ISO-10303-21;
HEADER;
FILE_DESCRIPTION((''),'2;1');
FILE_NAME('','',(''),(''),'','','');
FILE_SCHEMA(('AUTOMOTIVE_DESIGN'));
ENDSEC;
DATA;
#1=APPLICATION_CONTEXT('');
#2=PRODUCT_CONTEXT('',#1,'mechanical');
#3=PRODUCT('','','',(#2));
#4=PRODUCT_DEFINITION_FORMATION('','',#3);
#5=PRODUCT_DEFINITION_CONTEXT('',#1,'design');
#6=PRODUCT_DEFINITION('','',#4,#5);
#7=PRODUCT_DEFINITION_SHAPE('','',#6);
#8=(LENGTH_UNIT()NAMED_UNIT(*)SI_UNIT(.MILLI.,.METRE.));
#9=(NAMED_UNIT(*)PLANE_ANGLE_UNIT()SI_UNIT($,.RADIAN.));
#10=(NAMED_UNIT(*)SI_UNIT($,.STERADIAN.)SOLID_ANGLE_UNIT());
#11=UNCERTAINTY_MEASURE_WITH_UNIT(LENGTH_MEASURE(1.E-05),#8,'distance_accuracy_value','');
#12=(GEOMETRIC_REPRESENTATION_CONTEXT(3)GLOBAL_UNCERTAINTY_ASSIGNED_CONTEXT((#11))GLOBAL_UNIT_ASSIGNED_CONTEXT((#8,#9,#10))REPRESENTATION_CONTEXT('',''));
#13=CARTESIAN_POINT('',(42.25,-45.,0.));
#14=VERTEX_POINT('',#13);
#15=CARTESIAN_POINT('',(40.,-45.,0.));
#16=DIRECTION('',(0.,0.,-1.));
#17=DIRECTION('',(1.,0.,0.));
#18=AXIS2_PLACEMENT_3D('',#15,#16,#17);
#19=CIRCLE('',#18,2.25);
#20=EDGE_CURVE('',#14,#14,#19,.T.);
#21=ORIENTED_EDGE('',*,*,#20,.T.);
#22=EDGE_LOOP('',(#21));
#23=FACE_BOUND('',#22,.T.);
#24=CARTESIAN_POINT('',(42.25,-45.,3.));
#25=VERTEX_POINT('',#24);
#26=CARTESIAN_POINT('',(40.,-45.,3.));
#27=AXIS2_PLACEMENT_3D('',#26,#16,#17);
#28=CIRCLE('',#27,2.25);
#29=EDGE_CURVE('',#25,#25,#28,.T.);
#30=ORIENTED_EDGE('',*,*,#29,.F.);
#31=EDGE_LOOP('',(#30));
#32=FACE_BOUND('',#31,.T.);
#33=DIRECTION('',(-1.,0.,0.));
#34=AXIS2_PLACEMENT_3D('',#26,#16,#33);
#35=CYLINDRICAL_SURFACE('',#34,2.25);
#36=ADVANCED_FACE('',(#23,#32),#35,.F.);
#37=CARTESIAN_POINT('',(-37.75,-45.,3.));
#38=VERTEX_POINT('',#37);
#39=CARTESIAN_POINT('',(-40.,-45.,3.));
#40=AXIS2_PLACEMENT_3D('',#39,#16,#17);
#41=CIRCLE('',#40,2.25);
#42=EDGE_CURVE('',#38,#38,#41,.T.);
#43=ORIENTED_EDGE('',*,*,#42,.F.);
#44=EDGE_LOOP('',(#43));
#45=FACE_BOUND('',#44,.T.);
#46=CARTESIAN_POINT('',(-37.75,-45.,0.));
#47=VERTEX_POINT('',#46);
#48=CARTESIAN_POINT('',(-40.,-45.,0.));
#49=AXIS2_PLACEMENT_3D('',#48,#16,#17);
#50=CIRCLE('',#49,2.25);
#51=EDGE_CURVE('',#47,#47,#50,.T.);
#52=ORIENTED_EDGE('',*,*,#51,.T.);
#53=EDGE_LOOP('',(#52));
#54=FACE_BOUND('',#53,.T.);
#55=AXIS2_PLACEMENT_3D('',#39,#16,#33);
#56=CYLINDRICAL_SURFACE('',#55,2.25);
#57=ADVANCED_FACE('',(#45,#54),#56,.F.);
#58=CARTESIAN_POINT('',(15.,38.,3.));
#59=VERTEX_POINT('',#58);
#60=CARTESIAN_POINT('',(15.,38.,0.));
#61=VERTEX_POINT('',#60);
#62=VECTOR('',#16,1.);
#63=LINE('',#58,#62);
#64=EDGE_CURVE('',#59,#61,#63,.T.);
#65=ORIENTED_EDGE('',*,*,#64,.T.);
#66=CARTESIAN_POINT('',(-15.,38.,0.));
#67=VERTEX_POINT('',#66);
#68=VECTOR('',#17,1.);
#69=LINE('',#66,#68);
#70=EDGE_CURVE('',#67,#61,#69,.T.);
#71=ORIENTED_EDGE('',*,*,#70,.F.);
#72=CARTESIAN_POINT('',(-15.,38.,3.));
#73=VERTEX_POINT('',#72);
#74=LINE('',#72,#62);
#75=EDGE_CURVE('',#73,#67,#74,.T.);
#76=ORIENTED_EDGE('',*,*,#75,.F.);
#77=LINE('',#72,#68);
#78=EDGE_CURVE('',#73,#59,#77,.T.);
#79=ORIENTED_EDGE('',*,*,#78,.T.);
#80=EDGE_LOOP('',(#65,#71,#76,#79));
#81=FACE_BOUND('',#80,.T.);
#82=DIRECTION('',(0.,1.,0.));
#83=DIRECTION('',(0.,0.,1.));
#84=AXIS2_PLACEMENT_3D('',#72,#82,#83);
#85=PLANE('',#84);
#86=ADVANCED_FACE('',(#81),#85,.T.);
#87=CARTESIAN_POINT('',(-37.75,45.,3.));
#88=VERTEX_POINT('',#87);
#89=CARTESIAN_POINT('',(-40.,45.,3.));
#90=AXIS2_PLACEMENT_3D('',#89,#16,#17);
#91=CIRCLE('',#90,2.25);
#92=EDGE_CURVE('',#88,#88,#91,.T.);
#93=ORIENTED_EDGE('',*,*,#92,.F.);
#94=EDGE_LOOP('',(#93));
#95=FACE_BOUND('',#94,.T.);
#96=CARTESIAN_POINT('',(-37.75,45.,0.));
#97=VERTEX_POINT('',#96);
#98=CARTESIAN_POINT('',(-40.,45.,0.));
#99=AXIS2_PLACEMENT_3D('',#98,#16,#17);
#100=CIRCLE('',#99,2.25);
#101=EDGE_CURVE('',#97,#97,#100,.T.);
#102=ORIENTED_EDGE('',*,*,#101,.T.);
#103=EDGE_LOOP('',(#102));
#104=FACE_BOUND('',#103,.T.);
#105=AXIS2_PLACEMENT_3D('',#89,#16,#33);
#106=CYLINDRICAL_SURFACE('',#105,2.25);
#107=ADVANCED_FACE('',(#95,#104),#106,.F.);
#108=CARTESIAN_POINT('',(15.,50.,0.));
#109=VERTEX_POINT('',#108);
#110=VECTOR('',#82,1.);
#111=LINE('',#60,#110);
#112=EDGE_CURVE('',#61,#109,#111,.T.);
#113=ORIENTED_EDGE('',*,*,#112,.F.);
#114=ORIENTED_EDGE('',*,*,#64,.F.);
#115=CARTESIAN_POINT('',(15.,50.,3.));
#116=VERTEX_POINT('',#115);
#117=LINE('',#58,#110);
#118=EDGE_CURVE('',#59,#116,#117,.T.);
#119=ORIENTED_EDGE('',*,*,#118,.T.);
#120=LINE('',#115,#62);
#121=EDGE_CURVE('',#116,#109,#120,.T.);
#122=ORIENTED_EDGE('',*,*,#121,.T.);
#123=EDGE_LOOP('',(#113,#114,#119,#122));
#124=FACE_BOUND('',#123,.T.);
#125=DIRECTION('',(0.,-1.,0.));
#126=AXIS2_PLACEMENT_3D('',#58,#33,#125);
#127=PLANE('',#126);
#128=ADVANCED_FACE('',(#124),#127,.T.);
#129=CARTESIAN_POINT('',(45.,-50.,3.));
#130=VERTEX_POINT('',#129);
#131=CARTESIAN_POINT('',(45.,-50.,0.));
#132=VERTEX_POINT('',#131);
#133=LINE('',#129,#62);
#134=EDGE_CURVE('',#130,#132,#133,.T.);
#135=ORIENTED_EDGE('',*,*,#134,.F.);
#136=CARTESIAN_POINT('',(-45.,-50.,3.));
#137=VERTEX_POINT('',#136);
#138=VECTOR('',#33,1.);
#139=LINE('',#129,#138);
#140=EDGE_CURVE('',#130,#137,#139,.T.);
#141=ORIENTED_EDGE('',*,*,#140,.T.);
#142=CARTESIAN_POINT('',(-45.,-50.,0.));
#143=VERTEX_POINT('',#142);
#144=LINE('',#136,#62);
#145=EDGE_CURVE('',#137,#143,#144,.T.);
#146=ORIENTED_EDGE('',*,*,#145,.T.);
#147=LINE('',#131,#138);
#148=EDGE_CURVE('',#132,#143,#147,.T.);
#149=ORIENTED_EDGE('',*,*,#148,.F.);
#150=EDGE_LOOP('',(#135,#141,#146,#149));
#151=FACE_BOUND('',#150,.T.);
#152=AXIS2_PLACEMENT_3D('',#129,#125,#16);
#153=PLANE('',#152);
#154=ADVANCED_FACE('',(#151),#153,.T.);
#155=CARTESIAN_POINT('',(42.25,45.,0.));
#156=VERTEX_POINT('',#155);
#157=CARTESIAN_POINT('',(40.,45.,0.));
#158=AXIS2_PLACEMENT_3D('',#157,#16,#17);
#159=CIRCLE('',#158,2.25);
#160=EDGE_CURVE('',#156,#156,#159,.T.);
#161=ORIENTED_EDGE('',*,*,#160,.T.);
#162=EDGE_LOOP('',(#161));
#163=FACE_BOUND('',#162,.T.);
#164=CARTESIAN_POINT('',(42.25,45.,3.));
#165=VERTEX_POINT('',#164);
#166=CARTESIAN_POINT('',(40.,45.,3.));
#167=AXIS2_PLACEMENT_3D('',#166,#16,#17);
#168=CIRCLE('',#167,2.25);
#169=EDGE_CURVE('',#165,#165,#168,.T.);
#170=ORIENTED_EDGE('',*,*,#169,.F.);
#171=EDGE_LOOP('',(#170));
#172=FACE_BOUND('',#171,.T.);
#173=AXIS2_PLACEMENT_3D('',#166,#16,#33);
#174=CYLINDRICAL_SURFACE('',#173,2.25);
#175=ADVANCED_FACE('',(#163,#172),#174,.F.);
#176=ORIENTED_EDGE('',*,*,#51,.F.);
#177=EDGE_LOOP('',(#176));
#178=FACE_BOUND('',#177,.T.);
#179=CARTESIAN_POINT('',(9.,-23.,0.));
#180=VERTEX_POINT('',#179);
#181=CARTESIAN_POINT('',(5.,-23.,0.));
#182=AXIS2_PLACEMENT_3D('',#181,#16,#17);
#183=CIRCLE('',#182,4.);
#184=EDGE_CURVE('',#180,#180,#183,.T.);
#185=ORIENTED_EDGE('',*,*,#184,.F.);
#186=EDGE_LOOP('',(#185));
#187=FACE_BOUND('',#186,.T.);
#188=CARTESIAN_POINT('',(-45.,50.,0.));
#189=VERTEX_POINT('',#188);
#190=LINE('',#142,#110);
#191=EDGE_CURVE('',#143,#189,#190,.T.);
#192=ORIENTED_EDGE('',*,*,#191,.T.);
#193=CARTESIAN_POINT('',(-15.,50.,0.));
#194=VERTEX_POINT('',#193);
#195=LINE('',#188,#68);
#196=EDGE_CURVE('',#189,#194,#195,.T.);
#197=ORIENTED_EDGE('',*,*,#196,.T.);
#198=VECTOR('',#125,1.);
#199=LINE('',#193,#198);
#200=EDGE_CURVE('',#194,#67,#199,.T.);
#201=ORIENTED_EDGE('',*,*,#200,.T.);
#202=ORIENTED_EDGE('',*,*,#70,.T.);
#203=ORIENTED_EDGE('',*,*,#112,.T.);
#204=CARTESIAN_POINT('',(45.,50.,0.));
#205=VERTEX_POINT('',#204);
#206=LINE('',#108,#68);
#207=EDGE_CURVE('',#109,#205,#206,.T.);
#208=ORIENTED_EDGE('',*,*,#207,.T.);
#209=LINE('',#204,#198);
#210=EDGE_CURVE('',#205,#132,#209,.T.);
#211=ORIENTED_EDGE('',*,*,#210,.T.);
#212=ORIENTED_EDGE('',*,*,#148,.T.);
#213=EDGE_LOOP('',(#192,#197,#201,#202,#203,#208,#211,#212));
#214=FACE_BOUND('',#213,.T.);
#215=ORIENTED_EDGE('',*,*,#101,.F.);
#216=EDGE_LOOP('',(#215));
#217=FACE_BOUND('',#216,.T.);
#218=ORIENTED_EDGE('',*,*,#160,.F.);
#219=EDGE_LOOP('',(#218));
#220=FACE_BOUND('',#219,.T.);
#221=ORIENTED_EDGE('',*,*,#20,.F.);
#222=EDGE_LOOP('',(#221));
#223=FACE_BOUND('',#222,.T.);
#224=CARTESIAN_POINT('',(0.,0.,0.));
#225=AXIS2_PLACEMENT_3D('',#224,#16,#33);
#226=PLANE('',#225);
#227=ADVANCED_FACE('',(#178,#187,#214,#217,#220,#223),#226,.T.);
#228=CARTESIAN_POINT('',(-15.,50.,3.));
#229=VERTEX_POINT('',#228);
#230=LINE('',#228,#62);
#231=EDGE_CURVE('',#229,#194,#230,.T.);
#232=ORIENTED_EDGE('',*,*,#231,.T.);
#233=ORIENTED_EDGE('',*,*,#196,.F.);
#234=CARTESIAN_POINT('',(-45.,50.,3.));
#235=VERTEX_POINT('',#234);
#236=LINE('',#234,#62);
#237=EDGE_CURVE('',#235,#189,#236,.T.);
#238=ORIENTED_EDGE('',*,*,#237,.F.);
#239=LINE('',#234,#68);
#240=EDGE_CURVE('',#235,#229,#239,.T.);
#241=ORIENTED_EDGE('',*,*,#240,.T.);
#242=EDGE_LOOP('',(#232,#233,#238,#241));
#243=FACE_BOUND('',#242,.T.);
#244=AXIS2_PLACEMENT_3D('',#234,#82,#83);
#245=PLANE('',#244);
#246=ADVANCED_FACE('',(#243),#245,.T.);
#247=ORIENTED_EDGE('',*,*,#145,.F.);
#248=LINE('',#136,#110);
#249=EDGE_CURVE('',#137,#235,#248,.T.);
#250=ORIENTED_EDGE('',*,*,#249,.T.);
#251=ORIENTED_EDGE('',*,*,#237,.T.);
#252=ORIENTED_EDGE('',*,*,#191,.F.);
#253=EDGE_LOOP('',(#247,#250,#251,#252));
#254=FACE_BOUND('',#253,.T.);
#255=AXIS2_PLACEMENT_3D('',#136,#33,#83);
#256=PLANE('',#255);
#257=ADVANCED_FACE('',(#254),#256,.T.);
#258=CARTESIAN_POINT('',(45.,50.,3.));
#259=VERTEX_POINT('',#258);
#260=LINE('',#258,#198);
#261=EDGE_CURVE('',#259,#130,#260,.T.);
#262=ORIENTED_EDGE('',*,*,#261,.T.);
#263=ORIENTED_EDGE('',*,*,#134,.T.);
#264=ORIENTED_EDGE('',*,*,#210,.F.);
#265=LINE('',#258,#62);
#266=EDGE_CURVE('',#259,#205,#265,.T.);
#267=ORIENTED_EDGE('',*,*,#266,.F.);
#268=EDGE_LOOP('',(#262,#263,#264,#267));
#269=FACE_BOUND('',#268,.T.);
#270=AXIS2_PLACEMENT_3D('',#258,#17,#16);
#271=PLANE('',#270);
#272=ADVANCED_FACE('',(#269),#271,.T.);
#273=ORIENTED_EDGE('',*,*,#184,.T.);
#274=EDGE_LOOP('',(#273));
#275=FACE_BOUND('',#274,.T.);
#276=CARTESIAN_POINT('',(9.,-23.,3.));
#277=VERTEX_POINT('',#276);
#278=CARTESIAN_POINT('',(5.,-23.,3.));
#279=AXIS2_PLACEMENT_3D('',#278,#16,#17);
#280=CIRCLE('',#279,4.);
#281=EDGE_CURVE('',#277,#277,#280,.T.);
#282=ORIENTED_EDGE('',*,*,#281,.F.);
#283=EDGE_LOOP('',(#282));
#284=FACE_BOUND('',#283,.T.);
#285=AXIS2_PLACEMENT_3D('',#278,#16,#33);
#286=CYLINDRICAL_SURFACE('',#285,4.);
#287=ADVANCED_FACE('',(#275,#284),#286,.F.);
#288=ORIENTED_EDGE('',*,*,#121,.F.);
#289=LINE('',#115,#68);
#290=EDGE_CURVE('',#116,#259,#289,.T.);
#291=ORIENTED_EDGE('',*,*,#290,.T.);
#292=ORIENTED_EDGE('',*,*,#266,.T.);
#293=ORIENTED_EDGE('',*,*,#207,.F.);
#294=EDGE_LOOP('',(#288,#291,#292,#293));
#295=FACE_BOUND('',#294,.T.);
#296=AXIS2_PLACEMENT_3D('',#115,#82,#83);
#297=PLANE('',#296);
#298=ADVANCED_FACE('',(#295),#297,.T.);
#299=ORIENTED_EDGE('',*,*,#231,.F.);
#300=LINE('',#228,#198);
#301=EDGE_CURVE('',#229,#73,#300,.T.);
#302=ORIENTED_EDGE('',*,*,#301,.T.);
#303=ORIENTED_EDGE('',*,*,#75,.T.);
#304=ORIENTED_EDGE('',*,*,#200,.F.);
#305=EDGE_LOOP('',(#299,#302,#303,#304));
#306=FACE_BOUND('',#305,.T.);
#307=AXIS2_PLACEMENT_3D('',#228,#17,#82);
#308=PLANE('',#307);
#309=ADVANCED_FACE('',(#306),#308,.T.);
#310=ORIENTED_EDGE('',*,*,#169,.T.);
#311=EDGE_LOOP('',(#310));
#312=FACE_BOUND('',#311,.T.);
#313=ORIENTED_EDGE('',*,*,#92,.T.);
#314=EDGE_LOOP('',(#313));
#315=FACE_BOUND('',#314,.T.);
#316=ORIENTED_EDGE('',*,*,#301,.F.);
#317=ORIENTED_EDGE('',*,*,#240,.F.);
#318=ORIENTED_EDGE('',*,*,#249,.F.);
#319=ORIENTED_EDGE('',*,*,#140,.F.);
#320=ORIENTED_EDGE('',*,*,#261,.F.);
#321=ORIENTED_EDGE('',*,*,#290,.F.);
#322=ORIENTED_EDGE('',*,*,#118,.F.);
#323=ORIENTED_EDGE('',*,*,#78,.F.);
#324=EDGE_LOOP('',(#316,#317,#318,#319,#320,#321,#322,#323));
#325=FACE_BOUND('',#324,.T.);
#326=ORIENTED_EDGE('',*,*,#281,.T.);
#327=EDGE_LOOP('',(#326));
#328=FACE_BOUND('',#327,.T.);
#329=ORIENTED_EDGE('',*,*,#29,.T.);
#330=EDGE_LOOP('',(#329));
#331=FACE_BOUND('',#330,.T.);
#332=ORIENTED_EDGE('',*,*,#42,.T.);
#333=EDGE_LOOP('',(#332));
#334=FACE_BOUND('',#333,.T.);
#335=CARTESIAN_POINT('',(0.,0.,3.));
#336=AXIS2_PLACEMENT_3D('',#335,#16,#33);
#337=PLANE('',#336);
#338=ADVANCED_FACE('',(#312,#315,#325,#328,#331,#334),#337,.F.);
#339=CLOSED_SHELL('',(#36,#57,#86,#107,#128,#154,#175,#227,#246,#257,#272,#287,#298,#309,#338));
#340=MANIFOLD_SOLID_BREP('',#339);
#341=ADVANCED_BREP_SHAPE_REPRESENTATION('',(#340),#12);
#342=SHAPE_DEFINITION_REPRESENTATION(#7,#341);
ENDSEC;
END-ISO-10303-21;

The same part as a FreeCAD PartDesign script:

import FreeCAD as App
import Part
import Sketcher
from FreeCAD import Vector
Q = App.Units.Quantity

doc = App.newDocument("Part")
body = doc.addObject("PartDesign::Body", "Body")

sketch1 = body.newObject("Sketcher::SketchObject", "Sketch")
sketch1.AttachmentSupport = (doc.getObject("XY_Plane"), [""])
sketch1.MapMode = "FlatFace"
sketch1.addGeometry(Part.LineSegment(Vector(-15, 50, 0), Vector(-15, 38, 0)), False)
sketch1.addGeometry(Part.LineSegment(Vector(-15, 38, 0), Vector(15, 38, 0)), False)
sketch1.addGeometry(Part.LineSegment(Vector(15, 38, 0), Vector(15, 50, 0)), False)
sketch1.addGeometry(Part.LineSegment(Vector(15, 50, 0), Vector(45, 50, 0)), False)
sketch1.addGeometry(Part.LineSegment(Vector(45, 50, 0), Vector(45, -50, 0)), False)
sketch1.addGeometry(Part.LineSegment(Vector(45, -50, 0), Vector(-45, -50, 0)), False)
sketch1.addGeometry(Part.LineSegment(Vector(-45, -50, 0), Vector(-45, 50, 0)), False)
sketch1.addGeometry(Part.LineSegment(Vector(-45, 50, 0), Vector(-15, 50, 0)), False)
sketch1.addGeometry(Part.Circle(Vector(40, -45, 0), Vector(0, 0, 1), 2.2), False)
sketch1.addGeometry(Part.Circle(Vector(5, -23, 0), Vector(0, 0, 1), 4), False)
sketch1.addGeometry(Part.Circle(Vector(-40, -45, 0), Vector(0, 0, 1), 2.2), False)
sketch1.addGeometry(Part.Circle(Vector(40, 45, 0), Vector(0, 0, 1), 2.2), False)
sketch1.addGeometry(Part.Circle(Vector(-40, 45, 0), Vector(0, 0, 1), 2.2), False)
sketch1.addConstraint(Sketcher.Constraint("Coincident", 0, 2, 1, 1))
sketch1.addConstraint(Sketcher.Constraint("Coincident", 1, 2, 2, 1))
sketch1.addConstraint(Sketcher.Constraint("Coincident", 2, 2, 3, 1))
sketch1.addConstraint(Sketcher.Constraint("Coincident", 3, 2, 4, 1))
sketch1.addConstraint(Sketcher.Constraint("Coincident", 4, 2, 5, 1))
sketch1.addConstraint(Sketcher.Constraint("Coincident", 5, 2, 6, 1))
sketch1.addConstraint(Sketcher.Constraint("Coincident", 6, 2, 7, 1))
sketch1.addConstraint(Sketcher.Constraint("Coincident", 7, 2, 0, 1))
sketch1.addConstraint(Sketcher.Constraint("Vertical", 0))
sketch1.addConstraint(Sketcher.Constraint("Horizontal", 1))
sketch1.addConstraint(Sketcher.Constraint("Vertical", 2))
sketch1.addConstraint(Sketcher.Constraint("Horizontal", 3))
sketch1.addConstraint(Sketcher.Constraint("Vertical", 4))
sketch1.addConstraint(Sketcher.Constraint("Horizontal", 5))
sketch1.addConstraint(Sketcher.Constraint("Vertical", 6))
sketch1.addConstraint(Sketcher.Constraint("Horizontal", 7))
sketch1.addConstraint(Sketcher.Constraint("Equal", 8, 10))
sketch1.addConstraint(Sketcher.Constraint("Equal", 10, 11))
sketch1.addConstraint(Sketcher.Constraint("Equal", 11, 12))
sketch1.addConstraint(Sketcher.Constraint("Symmetric", 10, 3, 11, 3, -1, 1))
sketch1.addConstraint(Sketcher.Constraint("Symmetric", 8, 3, 12, 3, -1, 1))
sketch1.addConstraint(Sketcher.Constraint("Symmetric", 3, 2, 5, 2, -1, 1))
sketch1.addConstraint(Sketcher.Constraint("Symmetric", 8, 3, 10, 3, -2))
sketch1.addConstraint(Sketcher.Constraint("Symmetric", 2, 2, 7, 2, -2))
sketch1.addConstraint(Sketcher.Constraint("Equal", 1, 3))
sketch1.addConstraint(Sketcher.Constraint("Diameter", 9, Q("8 mm")))
sketch1.addConstraint(Sketcher.Constraint("Diameter", 8, Q("4.5 mm")))
sketch1.addConstraint(Sketcher.Constraint("DistanceX", 1, 1, 1, 2, Q("30 mm")))
sketch1.addConstraint(Sketcher.Constraint("DistanceY", 0, 2, 0, 1, Q("12 mm")))
sketch1.addConstraint(Sketcher.Constraint("DistanceY", 4, 2, 4, 1, Q("100 mm")))
sketch1.addConstraint(Sketcher.Constraint("DistanceX", -1, 1, 8, 3, Q("40 mm")))
sketch1.addConstraint(Sketcher.Constraint("DistanceY", 8, 3, -1, 1, Q("45 mm")))
sketch1.addConstraint(Sketcher.Constraint("DistanceX", -1, 1, 9, 3, Q("5 mm")))
sketch1.addConstraint(Sketcher.Constraint("DistanceY", 9, 3, -1, 1, Q("23 mm")))
pad1 = body.newObject("PartDesign::Pad", "Pad")
pad1.Profile = sketch1
pad1.Length = 3

doc.recompute()
